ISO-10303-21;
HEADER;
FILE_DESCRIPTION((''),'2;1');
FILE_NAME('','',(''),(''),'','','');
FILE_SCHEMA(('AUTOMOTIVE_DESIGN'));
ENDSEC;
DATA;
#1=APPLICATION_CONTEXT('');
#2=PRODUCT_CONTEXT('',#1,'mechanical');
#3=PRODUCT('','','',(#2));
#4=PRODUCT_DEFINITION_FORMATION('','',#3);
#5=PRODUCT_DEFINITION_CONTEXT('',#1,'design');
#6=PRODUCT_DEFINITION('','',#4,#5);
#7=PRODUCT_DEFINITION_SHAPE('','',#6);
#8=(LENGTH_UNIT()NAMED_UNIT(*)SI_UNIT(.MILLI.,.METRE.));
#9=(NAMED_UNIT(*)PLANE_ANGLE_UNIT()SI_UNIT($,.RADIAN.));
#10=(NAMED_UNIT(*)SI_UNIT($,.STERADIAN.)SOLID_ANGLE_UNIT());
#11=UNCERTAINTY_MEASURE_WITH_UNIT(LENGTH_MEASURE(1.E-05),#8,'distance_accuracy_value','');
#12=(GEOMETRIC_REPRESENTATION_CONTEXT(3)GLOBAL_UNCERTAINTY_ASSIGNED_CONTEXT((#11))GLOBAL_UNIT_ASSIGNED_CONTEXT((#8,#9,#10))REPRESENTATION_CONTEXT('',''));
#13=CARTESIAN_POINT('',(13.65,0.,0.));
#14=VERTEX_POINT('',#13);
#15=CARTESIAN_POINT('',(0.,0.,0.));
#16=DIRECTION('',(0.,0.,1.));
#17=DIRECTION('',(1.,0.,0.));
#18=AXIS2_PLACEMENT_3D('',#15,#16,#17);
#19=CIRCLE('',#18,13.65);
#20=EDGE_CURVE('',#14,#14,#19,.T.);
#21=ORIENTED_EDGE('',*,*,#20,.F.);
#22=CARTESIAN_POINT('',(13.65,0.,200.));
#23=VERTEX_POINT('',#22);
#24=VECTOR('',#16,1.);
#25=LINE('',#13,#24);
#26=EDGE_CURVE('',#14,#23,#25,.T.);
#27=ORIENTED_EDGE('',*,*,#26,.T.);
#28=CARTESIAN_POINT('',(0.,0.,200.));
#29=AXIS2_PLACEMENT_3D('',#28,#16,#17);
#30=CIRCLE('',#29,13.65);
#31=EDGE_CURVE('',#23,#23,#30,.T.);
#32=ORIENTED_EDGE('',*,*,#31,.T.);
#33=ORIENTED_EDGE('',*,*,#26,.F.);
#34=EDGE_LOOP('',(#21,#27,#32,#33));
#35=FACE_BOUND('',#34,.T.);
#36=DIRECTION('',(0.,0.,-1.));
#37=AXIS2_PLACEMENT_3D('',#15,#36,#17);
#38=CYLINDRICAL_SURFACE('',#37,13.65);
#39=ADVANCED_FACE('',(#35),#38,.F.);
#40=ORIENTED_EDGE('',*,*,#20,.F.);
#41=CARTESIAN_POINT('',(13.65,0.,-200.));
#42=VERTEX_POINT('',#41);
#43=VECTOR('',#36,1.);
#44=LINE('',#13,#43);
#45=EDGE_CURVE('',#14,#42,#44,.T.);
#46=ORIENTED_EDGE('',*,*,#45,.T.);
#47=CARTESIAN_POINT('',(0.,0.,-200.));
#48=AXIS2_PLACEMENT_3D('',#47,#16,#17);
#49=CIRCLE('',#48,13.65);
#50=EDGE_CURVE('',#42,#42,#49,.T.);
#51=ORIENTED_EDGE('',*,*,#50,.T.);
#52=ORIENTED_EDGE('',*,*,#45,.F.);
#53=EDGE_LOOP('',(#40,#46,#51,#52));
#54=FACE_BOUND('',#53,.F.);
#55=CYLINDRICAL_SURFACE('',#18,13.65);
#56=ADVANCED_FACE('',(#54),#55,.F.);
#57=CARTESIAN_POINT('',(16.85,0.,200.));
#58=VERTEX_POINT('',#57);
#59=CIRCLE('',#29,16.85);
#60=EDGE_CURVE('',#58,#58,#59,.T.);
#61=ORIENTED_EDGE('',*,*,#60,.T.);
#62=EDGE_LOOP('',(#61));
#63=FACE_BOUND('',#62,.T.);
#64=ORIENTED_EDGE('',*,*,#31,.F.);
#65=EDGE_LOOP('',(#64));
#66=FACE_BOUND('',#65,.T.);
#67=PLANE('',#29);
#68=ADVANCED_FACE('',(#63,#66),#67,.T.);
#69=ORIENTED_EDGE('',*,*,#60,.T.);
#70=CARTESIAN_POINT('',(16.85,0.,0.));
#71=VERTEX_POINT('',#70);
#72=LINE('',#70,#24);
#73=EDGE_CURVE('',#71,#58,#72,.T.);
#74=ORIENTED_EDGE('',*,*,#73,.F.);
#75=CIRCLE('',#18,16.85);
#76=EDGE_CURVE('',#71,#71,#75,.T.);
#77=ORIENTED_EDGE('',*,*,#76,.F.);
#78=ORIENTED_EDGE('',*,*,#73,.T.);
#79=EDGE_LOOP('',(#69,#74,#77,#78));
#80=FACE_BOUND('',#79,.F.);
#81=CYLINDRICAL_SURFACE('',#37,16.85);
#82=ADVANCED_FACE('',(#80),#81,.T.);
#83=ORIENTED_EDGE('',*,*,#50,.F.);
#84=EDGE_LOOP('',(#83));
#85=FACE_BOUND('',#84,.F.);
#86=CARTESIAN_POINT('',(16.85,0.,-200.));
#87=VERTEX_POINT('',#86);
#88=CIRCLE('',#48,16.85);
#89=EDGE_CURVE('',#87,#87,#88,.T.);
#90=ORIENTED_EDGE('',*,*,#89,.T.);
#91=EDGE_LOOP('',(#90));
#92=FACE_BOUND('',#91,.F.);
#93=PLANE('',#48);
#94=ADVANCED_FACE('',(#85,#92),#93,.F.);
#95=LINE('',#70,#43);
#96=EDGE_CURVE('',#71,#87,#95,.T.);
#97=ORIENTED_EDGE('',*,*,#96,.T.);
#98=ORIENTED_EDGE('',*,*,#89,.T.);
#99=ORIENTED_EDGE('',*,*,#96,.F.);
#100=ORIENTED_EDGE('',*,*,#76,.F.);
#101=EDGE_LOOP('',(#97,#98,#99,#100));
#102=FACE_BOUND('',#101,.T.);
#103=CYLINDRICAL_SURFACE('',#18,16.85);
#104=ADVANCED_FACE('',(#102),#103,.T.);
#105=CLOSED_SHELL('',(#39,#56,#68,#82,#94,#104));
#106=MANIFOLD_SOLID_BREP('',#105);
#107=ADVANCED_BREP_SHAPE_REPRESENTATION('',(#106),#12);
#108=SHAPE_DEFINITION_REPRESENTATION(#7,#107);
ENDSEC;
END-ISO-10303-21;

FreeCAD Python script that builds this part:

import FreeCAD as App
import Part
import Sketcher
from FreeCAD import Vector

doc = App.newDocument("Part")
body = doc.addObject("PartDesign::Body", "Body")

# Sketch on XY plane
sketch1 = body.newObject("Sketcher::SketchObject", "Sketch")
sketch1.AttachmentSupport = (doc.getObject("XY_Plane"), [""])
sketch1.MapMode = "FlatFace"
sketch1.addGeometry([
    Part.Circle(Vector(0, 0, 0), Vector(0, 0, 1), 17),
    Part.Circle(Vector(0, 0, 0), Vector(0, 0, 1), 14),
], False)
sketch1.addConstraint([
    Sketcher.Constraint("Coincident", 0, 3, -1, 1),
    Sketcher.Constraint("Coincident", 1, 3, -1, 1),
    Sketcher.Constraint("Diameter", 0, 33.7),
    Sketcher.Constraint("Diameter", 1, 27.3),
])
pad1 = body.newObject("PartDesign::Pad", "Pad")
pad1.Profile = sketch1
pad1.Length = 400
pad1.Midplane = True

doc.recompute()
